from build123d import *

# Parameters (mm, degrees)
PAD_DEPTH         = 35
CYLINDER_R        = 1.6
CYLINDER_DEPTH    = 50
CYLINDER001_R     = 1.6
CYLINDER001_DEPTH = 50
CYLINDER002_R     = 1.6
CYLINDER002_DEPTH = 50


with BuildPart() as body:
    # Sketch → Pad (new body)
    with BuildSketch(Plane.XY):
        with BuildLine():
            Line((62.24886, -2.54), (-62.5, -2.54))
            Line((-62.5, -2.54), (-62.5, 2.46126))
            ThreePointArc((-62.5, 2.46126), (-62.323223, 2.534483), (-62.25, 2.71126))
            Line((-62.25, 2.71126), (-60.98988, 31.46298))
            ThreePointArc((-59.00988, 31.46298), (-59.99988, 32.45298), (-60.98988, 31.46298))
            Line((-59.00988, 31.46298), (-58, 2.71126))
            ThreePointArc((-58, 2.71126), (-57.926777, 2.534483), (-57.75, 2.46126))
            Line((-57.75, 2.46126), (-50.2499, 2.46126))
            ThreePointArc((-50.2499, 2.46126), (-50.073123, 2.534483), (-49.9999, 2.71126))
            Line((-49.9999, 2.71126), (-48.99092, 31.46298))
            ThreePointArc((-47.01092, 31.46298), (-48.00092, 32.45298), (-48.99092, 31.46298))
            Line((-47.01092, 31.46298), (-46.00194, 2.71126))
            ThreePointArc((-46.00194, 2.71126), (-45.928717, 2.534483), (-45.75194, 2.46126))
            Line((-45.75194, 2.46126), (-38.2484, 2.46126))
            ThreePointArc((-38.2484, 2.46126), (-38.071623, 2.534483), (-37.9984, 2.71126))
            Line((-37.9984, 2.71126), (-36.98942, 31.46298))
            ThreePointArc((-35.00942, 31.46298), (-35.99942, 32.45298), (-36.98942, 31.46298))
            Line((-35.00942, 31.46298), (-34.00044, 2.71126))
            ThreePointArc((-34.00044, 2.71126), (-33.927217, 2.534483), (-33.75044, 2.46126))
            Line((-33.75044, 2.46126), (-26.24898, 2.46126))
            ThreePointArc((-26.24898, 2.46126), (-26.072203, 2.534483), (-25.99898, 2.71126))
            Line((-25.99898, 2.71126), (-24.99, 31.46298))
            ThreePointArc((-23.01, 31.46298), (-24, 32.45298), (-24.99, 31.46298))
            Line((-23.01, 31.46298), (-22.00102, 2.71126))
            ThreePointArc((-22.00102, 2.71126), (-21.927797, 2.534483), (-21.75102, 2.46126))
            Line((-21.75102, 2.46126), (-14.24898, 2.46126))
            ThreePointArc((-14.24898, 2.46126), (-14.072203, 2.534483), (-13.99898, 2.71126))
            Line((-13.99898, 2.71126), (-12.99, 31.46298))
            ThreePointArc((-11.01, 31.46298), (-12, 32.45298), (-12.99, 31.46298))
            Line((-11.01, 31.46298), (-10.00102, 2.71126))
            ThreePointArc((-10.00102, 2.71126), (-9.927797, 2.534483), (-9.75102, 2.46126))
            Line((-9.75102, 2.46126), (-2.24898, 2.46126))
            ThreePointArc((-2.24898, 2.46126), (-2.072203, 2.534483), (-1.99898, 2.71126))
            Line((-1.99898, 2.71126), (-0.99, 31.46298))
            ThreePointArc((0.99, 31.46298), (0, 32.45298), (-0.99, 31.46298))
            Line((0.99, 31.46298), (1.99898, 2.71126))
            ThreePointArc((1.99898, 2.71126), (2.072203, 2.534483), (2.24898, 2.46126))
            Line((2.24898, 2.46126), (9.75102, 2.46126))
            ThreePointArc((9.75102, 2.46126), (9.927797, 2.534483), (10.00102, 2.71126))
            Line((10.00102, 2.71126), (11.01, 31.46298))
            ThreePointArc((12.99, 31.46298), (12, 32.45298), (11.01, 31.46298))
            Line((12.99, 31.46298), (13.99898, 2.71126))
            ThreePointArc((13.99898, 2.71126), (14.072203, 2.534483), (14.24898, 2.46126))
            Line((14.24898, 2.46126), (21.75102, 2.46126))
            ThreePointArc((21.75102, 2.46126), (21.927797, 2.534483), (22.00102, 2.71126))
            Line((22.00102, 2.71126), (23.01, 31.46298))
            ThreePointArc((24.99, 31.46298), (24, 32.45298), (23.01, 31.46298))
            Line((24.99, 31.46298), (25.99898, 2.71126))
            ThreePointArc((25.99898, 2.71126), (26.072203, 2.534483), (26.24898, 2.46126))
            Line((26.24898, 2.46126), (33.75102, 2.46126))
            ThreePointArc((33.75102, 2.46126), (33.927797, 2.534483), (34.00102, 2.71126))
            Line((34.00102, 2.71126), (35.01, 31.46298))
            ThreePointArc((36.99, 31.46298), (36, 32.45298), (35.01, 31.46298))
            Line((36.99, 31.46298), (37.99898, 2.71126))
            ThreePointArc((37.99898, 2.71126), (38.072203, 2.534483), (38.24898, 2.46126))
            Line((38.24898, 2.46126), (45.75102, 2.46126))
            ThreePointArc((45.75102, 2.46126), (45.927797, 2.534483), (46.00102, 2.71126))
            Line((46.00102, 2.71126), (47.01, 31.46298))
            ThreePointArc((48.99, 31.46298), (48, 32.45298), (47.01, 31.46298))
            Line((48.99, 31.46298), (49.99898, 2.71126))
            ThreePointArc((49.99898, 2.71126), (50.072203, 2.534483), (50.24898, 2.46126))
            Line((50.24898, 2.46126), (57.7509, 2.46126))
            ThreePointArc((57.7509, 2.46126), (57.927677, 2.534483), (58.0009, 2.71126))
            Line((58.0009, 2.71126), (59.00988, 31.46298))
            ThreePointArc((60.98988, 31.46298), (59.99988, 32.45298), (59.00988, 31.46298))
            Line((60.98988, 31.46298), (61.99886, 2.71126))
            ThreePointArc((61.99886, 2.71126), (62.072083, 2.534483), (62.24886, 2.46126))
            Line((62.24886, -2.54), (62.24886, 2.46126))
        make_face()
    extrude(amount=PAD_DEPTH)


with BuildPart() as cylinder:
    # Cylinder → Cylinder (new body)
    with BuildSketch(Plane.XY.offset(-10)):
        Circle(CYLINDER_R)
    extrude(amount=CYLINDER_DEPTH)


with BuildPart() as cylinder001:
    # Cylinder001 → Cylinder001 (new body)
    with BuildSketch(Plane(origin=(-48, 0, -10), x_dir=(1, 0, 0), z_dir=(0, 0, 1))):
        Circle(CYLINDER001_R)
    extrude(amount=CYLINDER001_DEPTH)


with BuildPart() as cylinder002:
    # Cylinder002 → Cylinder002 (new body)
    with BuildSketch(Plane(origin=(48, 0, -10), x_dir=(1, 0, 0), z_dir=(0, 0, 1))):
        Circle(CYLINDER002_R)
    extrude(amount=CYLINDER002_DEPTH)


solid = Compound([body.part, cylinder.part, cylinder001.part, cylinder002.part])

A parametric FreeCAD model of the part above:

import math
import FreeCAD as App
import Part
import Sketcher

V = App.Vector

doc = App.newDocument("Part")
body = doc.addObject("PartDesign::Body", "Body")

sketch1 = body.newObject("Sketcher::SketchObject", "Sketch")
sketch1.AttachmentSupport = (doc.getObject("XY_Plane"), [""])
sketch1.MapMode = "FlatFace"
sketch1.addGeometry([
    Part.LineSegment(V(-62.5, -2.54, 0), V(62.25, -2.54, 0)),
    Part.LineSegment(V(62.25, -2.54, 0), V(62.25, 2.46, 0)),
    Part.ArcOfCircle(Part.Circle(V(62.25, 2.71, 0), V(0, 0, 1), 0.25), math.radians(180), math.radians(270)),
    Part.LineSegment(V(62, 2.71, 0), V(60.99, 31.46, 0)),
    Part.ArcOfCircle(Part.Circle(V(60, 31.46, 0), V(0, 0, 1), 0.99), math.radians(0), math.radians(180)),
    Part.LineSegment(V(59.01, 31.46, 0), V(58, 2.71, 0)),
    Part.ArcOfCircle(Part.Circle(V(57.75, 2.71, 0), V(0, 0, 1), 0.25), math.radians(-90), math.radians(0)),
    Part.LineSegment(V(57.75, 2.46, 0), V(50.25, 2.46, 0)),
    Part.ArcOfCircle(Part.Circle(V(50.25, 2.71, 0), V(0, 0, 1), 0.25), math.radians(180), math.radians(270)),
    Part.LineSegment(V(50, 2.71, 0), V(48.99, 31.46, 0)),
    Part.ArcOfCircle(Part.Circle(V(48, 31.46, 0), V(0, 0, 1), 0.99), math.radians(0), math.radians(180)),
    Part.LineSegment(V(47.01, 31.46, 0), V(46, 2.71, 0)),
    Part.ArcOfCircle(Part.Circle(V(45.75, 2.71, 0), V(0, 0, 1), 0.25), math.radians(-90), math.radians(0)),
    Part.LineSegment(V(45.75, 2.46, 0), V(38.25, 2.46, 0)),
    Part.ArcOfCircle(Part.Circle(V(38.25, 2.71, 0), V(0, 0, 1), 0.25), math.radians(180), math.radians(270)),
    Part.LineSegment(V(38, 2.71, 0), V(36.99, 31.46, 0)),
    Part.ArcOfCircle(Part.Circle(V(36, 31.46, 0), V(0, 0, 1), 0.99), math.radians(0), math.radians(180)),
    Part.LineSegment(V(35.01, 31.46, 0), V(34, 2.71, 0)),
    Part.ArcOfCircle(Part.Circle(V(33.75, 2.71, 0), V(0, 0, 1), 0.25), math.radians(-90), math.radians(0)),
    Part.LineSegment(V(33.75, 2.46, 0), V(26.25, 2.46, 0)),
    Part.ArcOfCircle(Part.Circle(V(26.25, 2.71, 0), V(0, 0, 1), 0.25), math.radians(180), math.radians(270)),
    Part.LineSegment(V(26, 2.71, 0), V(24.99, 31.46, 0)),
    Part.ArcOfCircle(Part.Circle(V(24, 31.46, 0), V(0, 0, 1), 0.99), math.radians(0), math.radians(180)),
    Part.LineSegment(V(23.01, 31.46, 0), V(22, 2.71, 0)),
    Part.ArcOfCircle(Part.Circle(V(21.75, 2.71, 0), V(0, 0, 1), 0.25), math.radians(-90), math.radians(0)),
    Part.LineSegment(V(21.75, 2.46, 0), V(14.25, 2.46, 0)),
    Part.ArcOfCircle(Part.Circle(V(14.25, 2.71, 0), V(0, 0, 1), 0.25), math.radians(180), math.radians(270)),
    Part.LineSegment(V(14, 2.71, 0), V(12.99, 31.46, 0)),
    Part.ArcOfCircle(Part.Circle(V(12, 31.46, 0), V(0, 0, 1), 0.99), math.radians(0), math.radians(180)),
    Part.LineSegment(V(11.01, 31.46, 0), V(10, 2.71, 0)),
    Part.ArcOfCircle(Part.Circle(V(9.75, 2.71, 0), V(0, 0, 1), 0.25), math.radians(-90), math.radians(0)),
    Part.LineSegment(V(9.75, 2.46, 0), V(2.25, 2.46, 0)),
    Part.ArcOfCircle(Part.Circle(V(2.25, 2.71, 0), V(0, 0, 1), 0.25), math.radians(180), math.radians(270)),
    Part.LineSegment(V(2, 2.71, 0), V(0.99, 31.46, 0)),
    Part.ArcOfCircle(Part.Circle(V(0, 31.46, 0), V(0, 0, 1), 0.99), math.radians(0), math.radians(180)),
    Part.LineSegment(V(-0.99, 31.46, 0), V(-2, 2.71, 0)),
    Part.ArcOfCircle(Part.Circle(V(-2.25, 2.71, 0), V(0, 0, 1), 0.25), math.radians(-90), math.radians(0)),
    Part.LineSegment(V(-2.25, 2.46, 0), V(-9.75, 2.46, 0)),
    Part.ArcOfCircle(Part.Circle(V(-9.75, 2.71, 0), V(0, 0, 1), 0.25), math.radians(180), math.radians(270)),
    Part.LineSegment(V(-10, 2.71, 0), V(-11.01, 31.46, 0)),
    Part.ArcOfCircle(Part.Circle(V(-12, 31.46, 0), V(0, 0, 1), 0.99), math.radians(0), math.radians(180)),
    Part.LineSegment(V(-12.99, 31.46, 0), V(-14, 2.71, 0)),
    Part.ArcOfCircle(Part.Circle(V(-14.25, 2.71, 0), V(0, 0, 1), 0.25), math.radians(-90), math.radians(0)),
    Part.LineSegment(V(-14.25, 2.46, 0), V(-21.75, 2.46, 0)),
    Part.ArcOfCircle(Part.Circle(V(-21.75, 2.71, 0), V(0, 0, 1), 0.25), math.radians(180), math.radians(270)),
    Part.LineSegment(V(-22, 2.71, 0), V(-23.01, 31.46, 0)),
    Part.ArcOfCircle(Part.Circle(V(-24, 31.46, 0), V(0, 0, 1), 0.99), math.radians(0), math.radians(180)),
    Part.LineSegment(V(-24.99, 31.46, 0), V(-26, 2.71, 0)),
    Part.ArcOfCircle(Part.Circle(V(-26.25, 2.71, 0), V(0, 0, 1), 0.25), math.radians(-90), math.radians(0)),
    Part.LineSegment(V(-26.25, 2.46, 0), V(-33.75, 2.46, 0)),
    Part.ArcOfCircle(Part.Circle(V(-33.75, 2.71, 0), V(0, 0, 1), 0.25), math.radians(180), math.radians(270)),
    Part.LineSegment(V(-34, 2.71, 0), V(-35.01, 31.46, 0)),
    Part.ArcOfCircle(Part.Circle(V(-36, 31.46, 0), V(0, 0, 1), 0.99), math.radians(0), math.radians(180)),
    Part.LineSegment(V(-36.99, 31.46, 0), V(-38, 2.71, 0)),
    Part.ArcOfCircle(Part.Circle(V(-38.25, 2.71, 0), V(0, 0, 1), 0.25), math.radians(-90), math.radians(0)),
    Part.LineSegment(V(-38.25, 2.46, 0), V(-45.75, 2.46, 0)),
    Part.ArcOfCircle(Part.Circle(V(-45.75, 2.71, 0), V(0, 0, 1), 0.25), math.radians(180), math.radians(270)),
    Part.LineSegment(V(-46, 2.71, 0), V(-47.01, 31.46, 0)),
    Part.ArcOfCircle(Part.Circle(V(-48, 31.46, 0), V(0, 0, 1), 0.99), math.radians(0), math.radians(180)),
    Part.LineSegment(V(-48.99, 31.46, 0), V(-50, 2.71, 0)),
    Part.ArcOfCircle(Part.Circle(V(-50.25, 2.71, 0), V(0, 0, 1), 0.25), math.radians(-90), math.radians(0)),
    Part.LineSegment(V(-50.25, 2.46, 0), V(-57.75, 2.46, 0)),
    Part.ArcOfCircle(Part.Circle(V(-57.75, 2.71, 0), V(0, 0, 1), 0.25), math.radians(180), math.radians(270)),
    Part.LineSegment(V(-58, 2.71, 0), V(-59.01, 31.46, 0)),
    Part.ArcOfCircle(Part.Circle(V(-60, 31.46, 0), V(0, 0, 1), 0.99), math.radians(0), math.radians(180)),
    Part.LineSegment(V(-60.99, 31.46, 0), V(-62.25, 2.71, 0)),
    Part.ArcOfCircle(Part.Circle(V(-62.5, 2.71, 0), V(0, 0, 1), 0.25), math.radians(-90), math.radians(0)),
    Part.LineSegment(V(-62.5, 2.46, 0), V(-62.5, -2.54, 0)),
], False)
sketch1.addConstraint([
    Sketcher.Constraint("Coincident", 0, 2, 1, 1),
    Sketcher.Constraint("Coincident", 1, 2, 2, 2),
    Sketcher.Constraint("Coincident", 2, 1, 3, 1),
    Sketcher.Constraint("Coincident", 3, 2, 4, 1),
    Sketcher.Constraint("Coincident", 4, 2, 5, 1),
    Sketcher.Constraint("Coincident", 5, 2, 6, 2),
    Sketcher.Constraint("Coincident", 6, 1, 7, 1),
    Sketcher.Constraint("Coincident", 7, 2, 8, 2),
    Sketcher.Constraint("Coincident", 8, 1, 9, 1),
    Sketcher.Constraint("Coincident", 9, 2, 10, 1),
    Sketcher.Constraint("Coincident", 10, 2, 11, 1),
    Sketcher.Constraint("Coincident", 11, 2, 12, 2),
    Sketcher.Constraint("Coincident", 12, 1, 13, 1),
    Sketcher.Constraint("Coincident", 13, 2, 14, 2),
    Sketcher.Constraint("Coincident", 14, 1, 15, 1),
    Sketcher.Constraint("Coincident", 15, 2, 16, 1),
    Sketcher.Constraint("Coincident", 16, 2, 17, 1),
    Sketcher.Constraint("Coincident", 17, 2, 18, 2),
    Sketcher.Constraint("Coincident", 18, 1, 19, 1),
    Sketcher.Constraint("Coincident", 19, 2, 20, 2),
    Sketcher.Constraint("Coincident", 20, 1, 21, 1),
    Sketcher.Constraint("Coincident", 21, 2, 22, 1),
    Sketcher.Constraint("Coincident", 22, 2, 23, 1),
    Sketcher.Constraint("Coincident", 23, 2, 24, 2),
    Sketcher.Constraint("Coincident", 24, 1, 25, 1),
    Sketcher.Constraint("Coincident", 25, 2, 26, 2),
    Sketcher.Constraint("Coincident", 26, 1, 27, 1),
    Sketcher.Constraint("Coincident", 27, 2, 28, 1),
    Sketcher.Constraint("Coincident", 28, 2, 29, 1),
    Sketcher.Constraint("Coincident", 29, 2, 30, 2),
    Sketcher.Constraint("Coincident", 30, 1, 31, 1),
    Sketcher.Constraint("Coincident", 31, 2, 32, 2),
    Sketcher.Constraint("Coincident", 32, 1, 33, 1),
    Sketcher.Constraint("Coincident", 33, 2, 34, 1),
    Sketcher.Constraint("Coincident", 34, 2, 35, 1),
    Sketcher.Constraint("Coincident", 35, 2, 36, 2),
    Sketcher.Constraint("Coincident", 36, 1, 37, 1),
    Sketcher.Constraint("Coincident", 37, 2, 38, 2),
    Sketcher.Constraint("Coincident", 38, 1, 39, 1),
    Sketcher.Constraint("Coincident", 39, 2, 40, 1),
    Sketcher.Constraint("Coincident", 40, 2, 41, 1),
    Sketcher.Constraint("Coincident", 41, 2, 42, 2),
    Sketcher.Constraint("Coincident", 42, 1, 43, 1),
    Sketcher.Constraint("Coincident", 43, 2, 44, 2),
    Sketcher.Constraint("Coincident", 44, 1, 45, 1),
    Sketcher.Constraint("Coincident", 45, 2, 46, 1),
    Sketcher.Constraint("Coincident", 46, 2, 47, 1),
    Sketcher.Constraint("Coincident", 47, 2, 48, 2),
    Sketcher.Constraint("Coincident", 48, 1, 49, 1),
    Sketcher.Constraint("Coincident", 49, 2, 50, 2),
    Sketcher.Constraint("Coincident", 50, 1, 51, 1),
    Sketcher.Constraint("Coincident", 51, 2, 52, 1),
    Sketcher.Constraint("Coincident", 52, 2, 53, 1),
    Sketcher.Constraint("Coincident", 53, 2, 54, 2),
    Sketcher.Constraint("Coincident", 54, 1, 55, 1),
    Sketcher.Constraint("Coincident", 55, 2, 56, 2),
    Sketcher.Constraint("Coincident", 56, 1, 57, 1),
    Sketcher.Constraint("Coincident", 57, 2, 58, 1),
    Sketcher.Constraint("Coincident", 58, 2, 59, 1),
    Sketcher.Constraint("Coincident", 59, 2, 60, 2),
    Sketcher.Constraint("Coincident", 60, 1, 61, 1),
    Sketcher.Constraint("Coincident", 61, 2, 62, 2),
    Sketcher.Constraint("Coincident", 62, 1, 63, 1),
    Sketcher.Constraint("Coincident", 63, 2, 64, 1),
    Sketcher.Constraint("Coincident", 64, 2, 65, 1),
    Sketcher.Constraint("Coincident", 65, 2, 66, 2),
    Sketcher.Constraint("Coincident", 66, 1, 67, 1),
    Sketcher.Constraint("Coincident", 67, 2, 0, 1),
    Sketcher.Constraint("Horizontal", 0),
    Sketcher.Constraint("Vertical", 1),
    Sketcher.Constraint("Horizontal", 7),
    Sketcher.Constraint("Horizontal", 13),
    Sketcher.Constraint("Horizontal", 19),
    Sketcher.Constraint("Horizontal", 25),
    Sketcher.Constraint("Horizontal", 31),
    Sketcher.Constraint("Horizontal", 37),
    Sketcher.Constraint("Horizontal", 43),
    Sketcher.Constraint("Horizontal", 49),
    Sketcher.Constraint("Horizontal", 55),
    Sketcher.Constraint("Horizontal", 61),
    Sketcher.Constraint("Vertical", 67),
    Sketcher.Constraint("Equal", 2, 6),
    Sketcher.Constraint("Equal", 6, 8),
    Sketcher.Constraint("Equal", 4, 10),
    Sketcher.Constraint("Equal", 8, 12),
    Sketcher.Constraint("Equal", 12, 14),
    Sketcher.Constraint("Equal", 10, 16),
    Sketcher.Constraint("Equal", 14, 18),
    Sketcher.Constraint("Equal", 18, 20),
    Sketcher.Constraint("Equal", 16, 22),
    Sketcher.Constraint("Equal", 20, 24),
    Sketcher.Constraint("Equal", 24, 26),
    Sketcher.Constraint("Equal", 22, 28),
    Sketcher.Constraint("Equal", 26, 30),
    Sketcher.Constraint("Equal", 30, 32),
    Sketcher.Constraint("Equal", 28, 34),
    Sketcher.Constraint("Equal", 32, 36),
    Sketcher.Constraint("Equal", 36, 38),
    Sketcher.Constraint("Equal", 34, 40),
    Sketcher.Constraint("Equal", 38, 42),
    Sketcher.Constraint("Equal", 42, 44),
    Sketcher.Constraint("Equal", 40, 46),
    Sketcher.Constraint("Equal", 44, 48),
    Sketcher.Constraint("Equal", 48, 50),
    Sketcher.Constraint("Equal", 46, 52),
    Sketcher.Constraint("Equal", 50, 54),
    Sketcher.Constraint("Equal", 54, 56),
    Sketcher.Constraint("Equal", 52, 58),
    Sketcher.Constraint("Equal", 56, 60),
    Sketcher.Constraint("Equal", 60, 62),
    Sketcher.Constraint("Equal", 58, 64),
    Sketcher.Constraint("Equal", 62, 66),
    Sketcher.Constraint("Symmetric", 32, 3, 36, 3, -2),
    Sketcher.Constraint("Symmetric", 28, 3, 40, 3, -2),
    Sketcher.Constraint("Symmetric", 26, 3, 42, 3, -2),
    Sketcher.Constraint("Symmetric", 22, 3, 46, 3, -2),
    Sketcher.Constraint("Symmetric", 20, 3, 48, 3, -2),
    Sketcher.Constraint("Symmetric", 4, 3, 64, 3, -2),
    Sketcher.Constraint("Symmetric", 33, 2, 34, 2, -2),
    Sketcher.Constraint("Symmetric", 29, 2, 38, 1, -2),
    Sketcher.Constraint("Symmetric", 23, 2, 44, 1, -2),
    Sketcher.Constraint("Parallel", 3, 9),
    Sketcher.Constraint("Parallel", 5, 11),
    Sketcher.Constraint("Parallel", 9, 15),
    Sketcher.Constraint("Parallel", 11, 17),
    Sketcher.Constraint("Parallel", 15, 21),
    Sketcher.Constraint("Parallel", 17, 23),
    Sketcher.Constraint("Parallel", 21, 27),
    Sketcher.Constraint("Parallel", 23, 29),
    Sketcher.Constraint("Parallel", 27, 33),
    Sketcher.Constraint("Parallel", 29, 35),
    Sketcher.Constraint("Parallel", 33, 39),
    Sketcher.Constraint("Parallel", 35, 41),
    Sketcher.Constraint("Parallel", 39, 45),
    Sketcher.Constraint("Parallel", 41, 47),
    Sketcher.Constraint("Parallel", 45, 51),
    Sketcher.Constraint("Parallel", 47, 53),
    Sketcher.Constraint("Parallel", 51, 57),
    Sketcher.Constraint("Parallel", 53, 59),
    Sketcher.Constraint("Horizontal", 2, 3, 6, 3),
    Sketcher.Constraint("Horizontal", 4, 3, 10, 3),
    Sketcher.Constraint("Horizontal", 8, 3, 12, 3),
    Sketcher.Constraint("Horizontal", 10, 3, 16, 3),
    Sketcher.Constraint("Horizontal", 14, 3, 18, 3),
    Sketcher.Constraint("Horizontal", 16, 3, 22, 3),
    Sketcher.Constraint("Horizontal", 20, 3, 24, 3),
    Sketcher.Constraint("Horizontal", 22, 3, 28, 3),
    Sketcher.Constraint("Horizontal", 26, 3, 30, 3),
    Sketcher.Constraint("Horizontal", 28, 3, 34, 3),
    Sketcher.Constraint("Horizontal", 46, 3, 52, 3),
    Sketcher.Constraint("Horizontal", 50, 3, 54, 3),
    Sketcher.Constraint("Horizontal", 52, 3, 58, 3),
    Sketcher.Constraint("Horizontal", 56, 3, 60, 3),
    Sketcher.Constraint("Horizontal", 62, 3, 66, 3),
    Sketcher.Constraint("Horizontal", 66, 3, 2, 1),
    Sketcher.Constraint("Horizontal", 64, 3, 3, 2),
    Sketcher.Constraint("Horizontal", 3, 2, 4, 2),
    Sketcher.Constraint("Horizontal", 2, 1, 5, 2),
    Sketcher.Constraint("Horizontal", 5, 2, 8, 1),
    Sketcher.Constraint("Horizontal", 4, 2, 9, 2),
    Sketcher.Constraint("Horizontal", 9, 2, 10, 2),
    Sketcher.Constraint("Horizontal", 8, 1, 11, 2),
    Sketcher.Constraint("Horizontal", 11, 2, 14, 1),
    Sketcher.Constraint("Horizontal", 10, 2, 15, 2),
    Sketcher.Constraint("Horizontal", 15, 2, 16, 2),
    Sketcher.Constraint("Horizontal", 14, 1, 17, 2),
    Sketcher.Constraint("Horizontal", 17, 2, 20, 1),
    Sketcher.Constraint("Horizontal", 16, 2, 21, 2),
    Sketcher.Constraint("Horizontal", 21, 2, 22, 2),
    Sketcher.Constraint("Horizontal", 20, 1, 23, 2),
    Sketcher.Constraint("Horizontal", 23, 2, 26, 1),
    Sketcher.Constraint("Horizontal", 22, 2, 27, 2),
    Sketcher.Constraint("Horizontal", 27, 2, 28, 2),
    Sketcher.Constraint("Horizontal", 26, 1, 29, 2),
    Sketcher.Constraint("Horizontal", 29, 2, 32, 1),
    Sketcher.Constraint("Horizontal", 28, 2, 33, 2),
    Sketcher.Constraint("Horizontal", 32, 1, 35, 2),
    Sketcher.Constraint("Horizontal", 39, 2, 40, 2),
    Sketcher.Constraint("Horizontal", 45, 2, 46, 2),
    Sketcher.Constraint("Horizontal", 47, 2, 50, 1),
    Sketcher.Constraint("Horizontal", 46, 2, 51, 2),
    Sketcher.Constraint("Horizontal", 51, 2, 52, 2),
    Sketcher.Constraint("Horizontal", 50, 1, 53, 2),
    Sketcher.Constraint("Horizontal", 53, 2, 56, 1),
    Sketcher.Constraint("Horizontal", 52, 2, 57, 2),
    Sketcher.Constraint("Horizontal", 57, 2, 58, 2),
    Sketcher.Constraint("Horizontal", 56, 1, 59, 2),
    Sketcher.Constraint("Horizontal", 59, 2, 62, 1),
    Sketcher.Constraint("Horizontal", 58, 2, 63, 2),
    Sketcher.Constraint("Horizontal", 63, 2, 64, 2),
    Sketcher.Constraint("Horizontal", 62, 1, 65, 2),
    Sketcher.Constraint("Vertical", 2, 3, 0, 2),
    Sketcher.Constraint("Vertical", 8, 3, 7, 2),
    Sketcher.Constraint("Vertical", 14, 3, 13, 2),
    Sketcher.Constraint("Vertical", 20, 3, 19, 2),
    Sketcher.Constraint("Vertical", 26, 3, 25, 2),
    Sketcher.Constraint("Vertical", 32, 3, 31, 2),
    Sketcher.Constraint("Vertical", 38, 3, 37, 2),
    Sketcher.Constraint("Vertical", 44, 3, 43, 2),
    Sketcher.Constraint("Vertical", 50, 3, 49, 2),
    Sketcher.Constraint("Vertical", 56, 3, 55, 2),
    Sketcher.Constraint("Vertical", 62, 3, 61, 2),
    Sketcher.Constraint("Equal", 13, 19),
    Sketcher.Constraint("Equal", 19, 25),
    Sketcher.Constraint("Equal", 25, 31),
    Sketcher.Constraint("Equal", 31, 37),
    Sketcher.Constraint("Equal", 37, 43),
    Sketcher.Constraint("Radius", 2, 0.249999),
    Sketcher.Constraint("Radius", 4, 0.99),
    Sketcher.Constraint("DistanceX", -1, 1, 10, 3, 48.0),
    Sketcher.Constraint("DistanceX", -1, 1, 16, 3, 36.0),
    Sketcher.Constraint("DistanceX", -1, 1, 22, 3, 24.0),
    Sketcher.Constraint("DistanceX", -1, 1, 28, 3, 12.0),
    Sketcher.Constraint("DistanceX", 62, 1, -1, 1, 58.0),
    Sketcher.Constraint("DistanceX", 66, 3, -1, 1, 62.499999),
    Sketcher.Constraint("DistanceX", 66, 1, -1, 1, 62.5),
    Sketcher.Constraint("DistanceY", 0, 2, -1, 1, 2.54),
    Sketcher.Constraint("DistanceX", 61, 2, 61, 1, 7.5001),
    Sketcher.Constraint("DistanceX", 0, 1, 0, 2, 124.74886),
    Sketcher.Constraint("DistanceX", 7, 2, 7, 1, 7.50192),
    Sketcher.Constraint("DistanceX", 13, 2, 13, 1, 7.50204),
    Sketcher.Constraint("DistanceX", 49, 2, 49, 1, 7.50146),
    Sketcher.Constraint("DistanceX", 55, 2, 55, 1, 7.50354),
    Sketcher.Constraint("DistanceY", 1, 1, 1, 2, 5.00126),
    Sketcher.Constraint("DistanceX", -1, 1, 6, 3, 57.750901),
    Sketcher.Constraint("DistanceX", 54, 3, -1, 1, 38.248399),
    Sketcher.Constraint("DistanceX", 60, 3, -1, 1, 50.249899),
    Sketcher.Constraint("Distance", 3, 28.769419),
])
pad1 = body.newObject("PartDesign::Pad", "Pad")
pad1.Profile = sketch1
pad1.Length = 35
body2 = doc.addObject("PartDesign::Body", "Body001")

sketch2 = body2.newObject("Sketcher::SketchObject", "Sketch001")
sketch2.AttachmentSupport = (doc.getObject("XY_Plane001"), [""])
sketch2.MapMode = "FlatFace"
sketch2.AttachmentOffset = App.Placement(V(0, 0, -10), App.Rotation())
sketch2.addGeometry(Part.Circle(V(0, 0, 0), V(0, 0, 1), 1.6), False)
sketch2.addConstraint([
    Sketcher.Constraint("Coincident", 0, 3, -1, 1),
    Sketcher.Constraint("Diameter", 0, 3.2),
])
pad2 = body2.newObject("PartDesign::Pad", "Pad001")
pad2.Profile = sketch2
pad2.Length = 50
body3 = doc.addObject("PartDesign::Body", "Body002")

sketch3 = body3.newObject("Sketcher::SketchObject", "Sketch002")
sketch3.AttachmentSupport = (doc.getObject("XY_Plane002"), [""])
sketch3.MapMode = "FlatFace"
sketch3.AttachmentOffset = App.Placement(V(0, 0, -10), App.Rotation())
sketch3.addGeometry(Part.Circle(V(-48, 0, 0), V(0, 0, 1), 1.6), False)
sketch3.addConstraint([
    Sketcher.Constraint("PointOnObject", 0, 3, -1),
    Sketcher.Constraint("Diameter", 0, 3.2),
    Sketcher.Constraint("DistanceX", 0, 3, -1, 1, 48.0),
])
pad3 = body3.newObject("PartDesign::Pad", "Pad002")
pad3.Profile = sketch3
pad3.Length = 50
body4 = doc.addObject("PartDesign::Body", "Body003")

sketch4 = body4.newObject("Sketcher::SketchObject", "Sketch003")
sketch4.AttachmentSupport = (doc.getObject("XY_Plane003"), [""])
sketch4.MapMode = "FlatFace"
sketch4.AttachmentOffset = App.Placement(V(0, 0, -10), App.Rotation())
sketch4.addGeometry(Part.Circle(V(48, 0, 0), V(0, 0, 1), 1.6), False)
sketch4.addConstraint([
    Sketcher.Constraint("PointOnObject", 0, 3, -1),
    Sketcher.Constraint("Diameter", 0, 3.2),
    Sketcher.Constraint("DistanceX", -1, 1, 0, 3, 48.0),
])
pad4 = body4.newObject("PartDesign::Pad", "Pad003")
pad4.Profile = sketch4
pad4.Length = 50

doc.recompute()
